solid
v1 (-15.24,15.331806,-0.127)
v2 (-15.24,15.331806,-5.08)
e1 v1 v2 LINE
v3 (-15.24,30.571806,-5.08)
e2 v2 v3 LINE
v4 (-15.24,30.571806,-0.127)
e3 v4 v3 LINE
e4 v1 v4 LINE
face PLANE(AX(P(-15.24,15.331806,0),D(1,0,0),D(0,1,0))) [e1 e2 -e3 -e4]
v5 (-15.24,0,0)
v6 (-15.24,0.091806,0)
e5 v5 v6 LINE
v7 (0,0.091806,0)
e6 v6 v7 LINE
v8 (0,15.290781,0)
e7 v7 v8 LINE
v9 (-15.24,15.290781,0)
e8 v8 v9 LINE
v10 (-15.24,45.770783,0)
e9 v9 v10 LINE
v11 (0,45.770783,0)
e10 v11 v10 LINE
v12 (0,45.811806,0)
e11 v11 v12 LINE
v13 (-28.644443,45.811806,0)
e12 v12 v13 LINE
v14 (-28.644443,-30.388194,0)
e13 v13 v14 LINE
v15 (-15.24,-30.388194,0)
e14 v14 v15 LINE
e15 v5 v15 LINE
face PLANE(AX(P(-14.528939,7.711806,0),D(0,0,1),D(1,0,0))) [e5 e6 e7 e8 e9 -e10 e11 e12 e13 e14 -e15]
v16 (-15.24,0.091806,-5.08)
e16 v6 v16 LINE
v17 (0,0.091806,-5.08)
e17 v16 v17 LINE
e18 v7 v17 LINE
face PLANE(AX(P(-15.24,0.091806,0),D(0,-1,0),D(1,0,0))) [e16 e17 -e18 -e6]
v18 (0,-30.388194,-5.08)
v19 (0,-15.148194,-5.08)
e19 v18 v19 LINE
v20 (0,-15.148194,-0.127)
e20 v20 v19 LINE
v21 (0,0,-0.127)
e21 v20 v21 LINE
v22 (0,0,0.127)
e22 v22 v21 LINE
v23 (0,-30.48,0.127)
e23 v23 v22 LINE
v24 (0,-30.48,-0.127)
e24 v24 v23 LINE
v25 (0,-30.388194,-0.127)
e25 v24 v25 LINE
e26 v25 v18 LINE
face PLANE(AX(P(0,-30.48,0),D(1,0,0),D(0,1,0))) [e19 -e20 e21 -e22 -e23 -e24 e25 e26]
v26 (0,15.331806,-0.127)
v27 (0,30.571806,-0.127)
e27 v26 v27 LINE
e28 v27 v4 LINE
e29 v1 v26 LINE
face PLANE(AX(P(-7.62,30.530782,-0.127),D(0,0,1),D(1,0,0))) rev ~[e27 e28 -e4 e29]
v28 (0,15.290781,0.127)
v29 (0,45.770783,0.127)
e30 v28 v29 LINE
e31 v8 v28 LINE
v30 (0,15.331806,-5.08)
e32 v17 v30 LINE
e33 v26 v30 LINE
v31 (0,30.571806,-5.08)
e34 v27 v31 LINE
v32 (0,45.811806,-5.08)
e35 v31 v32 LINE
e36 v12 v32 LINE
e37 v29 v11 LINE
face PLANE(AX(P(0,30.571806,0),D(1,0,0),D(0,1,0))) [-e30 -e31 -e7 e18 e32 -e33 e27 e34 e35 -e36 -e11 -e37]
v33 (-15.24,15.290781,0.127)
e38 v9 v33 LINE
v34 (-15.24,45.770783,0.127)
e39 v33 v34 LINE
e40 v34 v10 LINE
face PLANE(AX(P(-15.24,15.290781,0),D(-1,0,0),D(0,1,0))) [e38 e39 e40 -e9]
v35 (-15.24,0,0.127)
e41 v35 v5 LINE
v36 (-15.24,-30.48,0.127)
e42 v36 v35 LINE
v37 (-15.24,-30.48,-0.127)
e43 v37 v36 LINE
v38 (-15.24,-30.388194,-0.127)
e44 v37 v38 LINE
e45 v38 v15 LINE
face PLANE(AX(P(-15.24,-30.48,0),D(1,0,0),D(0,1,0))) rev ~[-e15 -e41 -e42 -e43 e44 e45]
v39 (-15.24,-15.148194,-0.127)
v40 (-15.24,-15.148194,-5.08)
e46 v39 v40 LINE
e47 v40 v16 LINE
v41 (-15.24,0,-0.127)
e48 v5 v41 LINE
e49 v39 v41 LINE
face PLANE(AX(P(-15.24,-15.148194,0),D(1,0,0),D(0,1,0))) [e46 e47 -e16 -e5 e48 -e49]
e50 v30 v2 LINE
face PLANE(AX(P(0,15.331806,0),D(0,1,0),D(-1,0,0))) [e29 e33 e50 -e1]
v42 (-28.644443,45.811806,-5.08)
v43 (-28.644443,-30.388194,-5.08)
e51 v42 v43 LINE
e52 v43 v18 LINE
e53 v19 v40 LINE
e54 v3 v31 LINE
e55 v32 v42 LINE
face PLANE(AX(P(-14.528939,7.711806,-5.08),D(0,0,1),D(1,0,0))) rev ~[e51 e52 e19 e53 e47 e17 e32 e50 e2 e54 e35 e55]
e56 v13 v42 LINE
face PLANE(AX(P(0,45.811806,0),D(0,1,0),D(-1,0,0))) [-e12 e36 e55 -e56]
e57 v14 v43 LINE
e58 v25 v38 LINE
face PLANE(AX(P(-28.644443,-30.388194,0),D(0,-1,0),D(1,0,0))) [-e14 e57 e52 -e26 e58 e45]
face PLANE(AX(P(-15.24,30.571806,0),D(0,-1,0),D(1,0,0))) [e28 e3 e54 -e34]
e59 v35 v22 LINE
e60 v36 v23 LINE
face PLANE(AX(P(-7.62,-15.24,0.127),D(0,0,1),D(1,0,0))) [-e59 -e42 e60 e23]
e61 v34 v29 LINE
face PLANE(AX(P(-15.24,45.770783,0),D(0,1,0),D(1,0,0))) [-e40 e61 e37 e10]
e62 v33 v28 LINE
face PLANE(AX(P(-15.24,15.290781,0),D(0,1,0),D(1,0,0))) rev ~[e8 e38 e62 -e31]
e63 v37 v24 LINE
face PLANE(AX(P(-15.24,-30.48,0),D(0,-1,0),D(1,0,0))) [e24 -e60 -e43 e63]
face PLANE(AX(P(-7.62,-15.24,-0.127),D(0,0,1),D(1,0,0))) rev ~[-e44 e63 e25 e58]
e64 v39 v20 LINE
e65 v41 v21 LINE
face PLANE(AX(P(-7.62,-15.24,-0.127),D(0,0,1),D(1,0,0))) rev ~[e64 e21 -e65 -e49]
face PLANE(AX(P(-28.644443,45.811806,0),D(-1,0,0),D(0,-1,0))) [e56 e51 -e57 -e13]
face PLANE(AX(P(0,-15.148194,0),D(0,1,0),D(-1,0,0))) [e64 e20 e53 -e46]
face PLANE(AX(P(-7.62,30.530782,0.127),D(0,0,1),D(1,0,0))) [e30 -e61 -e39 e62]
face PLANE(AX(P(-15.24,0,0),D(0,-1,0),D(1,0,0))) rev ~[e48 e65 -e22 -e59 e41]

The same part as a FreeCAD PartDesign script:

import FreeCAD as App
import Part
import Sketcher
Q = App.Units.Quantity


def add_polygon(sketch, points):
    """Adds a closed chain of lines whose ends are joined by coincident constraints."""
    first, n = sketch.GeometryCount, len(points)
    for a, b in zip(points, points[1:] + points[:1]):
        sketch.addGeometry(Part.LineSegment(App.Vector(*a, 0), App.Vector(*b, 0)), False)
    for i in range(n):
        sketch.addConstraint(Sketcher.Constraint("Coincident", first + i, 2, first + (i + 1) % n, 1))

doc = App.newDocument("Part")
params = doc.addObject("Spreadsheet::Sheet", "Params")
for row, (alias, value) in enumerate([
    ("sketch1_height", "3 in"),
    ("pad1_length", "0.2 in"),
    ("sketch2_width", "0.6 in"),
    ("sketch2_height", "1.2000001 in"),
    ("pad2_length", "0.01 in"),
], start=1):
    params.set(f"A{row}", alias)
    params.set(f"B{row}", "=" + value)
    params.setAlias(f"B{row}", alias)

body = doc.addObject("PartDesign::Body", "Body")

# Sketch on XY plane
sketch1 = body.newObject("Sketcher::SketchObject", "Sketch")
sketch1.AttachmentSupport = (doc.getObject("XY_Plane"), [""])
sketch1.MapMode = "FlatFace"
add_polygon(sketch1, [(0, 45.811806), (-28.644443, 45.811806), (-28.644443, -30.388194), (0, -30.388194), (0, -15.148194), (-15.24, -15.148194), (-15.24, 0.091806), (0, 0.091806), (0, 15.331806), (-15.24, 15.331806), (-15.24, 30.571806), (0, 30.571806)])  # lines 0-11
sketch1.addConstraint(Sketcher.Constraint("Horizontal", 0))
sketch1.addConstraint(Sketcher.Constraint("Vertical", 1))
sketch1.addConstraint(Sketcher.Constraint("Horizontal", 2))
sketch1.addConstraint(Sketcher.Constraint("Vertical", 3))
sketch1.addConstraint(Sketcher.Constraint("Horizontal", 4))
sketch1.addConstraint(Sketcher.Constraint("Vertical", 5))
sketch1.addConstraint(Sketcher.Constraint("Horizontal", 6))
sketch1.addConstraint(Sketcher.Constraint("Vertical", 7))
sketch1.addConstraint(Sketcher.Constraint("Horizontal", 8))
sketch1.addConstraint(Sketcher.Constraint("Vertical", 9))
sketch1.addConstraint(Sketcher.Constraint("Horizontal", 10))
sketch1.addConstraint(Sketcher.Constraint("Vertical", 11))
sketch1.addConstraint(Sketcher.Constraint("PointOnObject", 2, 2, -2))
sketch1.addConstraint(Sketcher.Constraint("PointOnObject", 6, 2, -2))
sketch1.addConstraint(Sketcher.Constraint("PointOnObject", 10, 2, -2))
sketch1.addConstraint(Sketcher.Constraint("Vertical", 5, 2, 8, 2))
sketch1.addConstraint(Sketcher.Constraint("Equal", 10, 3))
sketch1.addConstraint(Sketcher.Constraint("Equal", 3, 5))
sketch1.addConstraint(Sketcher.Constraint("Equal", 5, 7))
sketch1.addConstraint(Sketcher.Constraint("Equal", 7, 9))
sketch1.addConstraint(Sketcher.Constraint("Equal", 9, 11))
sketch1.addConstraint(Sketcher.Constraint("DistanceY", 1, 2, 1, 1, Q("3 in")))
sketch1.addConstraint(Sketcher.Constraint("DistanceX", 0, 2, 0, 1, Q("28.644443 mm")))
sketch1.addConstraint(Sketcher.Constraint("DistanceY", -1, 1, 0, 2, Q("45.811806 mm")))
sketch1.setExpression("Constraints[33]", "Params.sketch1_height")
pad1 = body.newObject("PartDesign::Pad", "Pad")
pad1.Profile = sketch1
pad1.setExpression("Length", "Params.pad1_length")
pad1.Reversed = True

# Sketch on XY plane
sketch2 = body.newObject("Sketcher::SketchObject", "Sketch001")
sketch2.AttachmentSupport = (doc.getObject("XY_Plane"), [""])
sketch2.MapMode = "FlatFace"
add_polygon(sketch2, [(-15.24, 45.770783), (-15.24, 15.290781), (0, 15.290781), (0, 45.770783)])  # lines 0-3
add_polygon(sketch2, [(-15.24, 0), (-15.24, -30.48), (0, -30.48), (0, 0)])  # lines 4-7
sketch2.addConstraint(Sketcher.Constraint("Vertical", 0))
sketch2.addConstraint(Sketcher.Constraint("Horizontal", 1))
sketch2.addConstraint(Sketcher.Constraint("Vertical", 2))
sketch2.addConstraint(Sketcher.Constraint("Horizontal", 3))
sketch2.addConstraint(Sketcher.Constraint("Vertical", 4))
sketch2.addConstraint(Sketcher.Constraint("Horizontal", 5))
sketch2.addConstraint(Sketcher.Constraint("Vertical", 6))
sketch2.addConstraint(Sketcher.Constraint("Horizontal", 7))
sketch2.addConstraint(Sketcher.Constraint("Coincident", 6, 2, -1, 1))
sketch2.addConstraint(Sketcher.Constraint("PointOnObject", 1, 2, -2))
sketch2.addConstraint(Sketcher.Constraint("Vertical", 3, 2, 4, 2))
sketch2.addConstraint(Sketcher.Constraint("Equal", 2, 4))
sketch2.addConstraint(Sketcher.Constraint("DistanceX", 1, 1, 1, 2, Q("0.6 in")))
sketch2.addConstraint(Sketcher.Constraint("DistanceY", 0, 2, 0, 1, Q("1.2000001 in")))
sketch2.addConstraint(Sketcher.Constraint("DistanceY", -1, 1, 0, 2, Q("15.290781 mm")))
sketch2.setExpression("Constraints[20]", "Params.sketch2_width")
sketch2.setExpression("Constraints[21]", "Params.sketch2_height")
pad2 = body.newObject("PartDesign::Pad", "Pad001")
pad2.Profile = sketch2
pad2.setExpression("Length", "Params.pad2_length")
pad2.Midplane = True

doc.recompute()
